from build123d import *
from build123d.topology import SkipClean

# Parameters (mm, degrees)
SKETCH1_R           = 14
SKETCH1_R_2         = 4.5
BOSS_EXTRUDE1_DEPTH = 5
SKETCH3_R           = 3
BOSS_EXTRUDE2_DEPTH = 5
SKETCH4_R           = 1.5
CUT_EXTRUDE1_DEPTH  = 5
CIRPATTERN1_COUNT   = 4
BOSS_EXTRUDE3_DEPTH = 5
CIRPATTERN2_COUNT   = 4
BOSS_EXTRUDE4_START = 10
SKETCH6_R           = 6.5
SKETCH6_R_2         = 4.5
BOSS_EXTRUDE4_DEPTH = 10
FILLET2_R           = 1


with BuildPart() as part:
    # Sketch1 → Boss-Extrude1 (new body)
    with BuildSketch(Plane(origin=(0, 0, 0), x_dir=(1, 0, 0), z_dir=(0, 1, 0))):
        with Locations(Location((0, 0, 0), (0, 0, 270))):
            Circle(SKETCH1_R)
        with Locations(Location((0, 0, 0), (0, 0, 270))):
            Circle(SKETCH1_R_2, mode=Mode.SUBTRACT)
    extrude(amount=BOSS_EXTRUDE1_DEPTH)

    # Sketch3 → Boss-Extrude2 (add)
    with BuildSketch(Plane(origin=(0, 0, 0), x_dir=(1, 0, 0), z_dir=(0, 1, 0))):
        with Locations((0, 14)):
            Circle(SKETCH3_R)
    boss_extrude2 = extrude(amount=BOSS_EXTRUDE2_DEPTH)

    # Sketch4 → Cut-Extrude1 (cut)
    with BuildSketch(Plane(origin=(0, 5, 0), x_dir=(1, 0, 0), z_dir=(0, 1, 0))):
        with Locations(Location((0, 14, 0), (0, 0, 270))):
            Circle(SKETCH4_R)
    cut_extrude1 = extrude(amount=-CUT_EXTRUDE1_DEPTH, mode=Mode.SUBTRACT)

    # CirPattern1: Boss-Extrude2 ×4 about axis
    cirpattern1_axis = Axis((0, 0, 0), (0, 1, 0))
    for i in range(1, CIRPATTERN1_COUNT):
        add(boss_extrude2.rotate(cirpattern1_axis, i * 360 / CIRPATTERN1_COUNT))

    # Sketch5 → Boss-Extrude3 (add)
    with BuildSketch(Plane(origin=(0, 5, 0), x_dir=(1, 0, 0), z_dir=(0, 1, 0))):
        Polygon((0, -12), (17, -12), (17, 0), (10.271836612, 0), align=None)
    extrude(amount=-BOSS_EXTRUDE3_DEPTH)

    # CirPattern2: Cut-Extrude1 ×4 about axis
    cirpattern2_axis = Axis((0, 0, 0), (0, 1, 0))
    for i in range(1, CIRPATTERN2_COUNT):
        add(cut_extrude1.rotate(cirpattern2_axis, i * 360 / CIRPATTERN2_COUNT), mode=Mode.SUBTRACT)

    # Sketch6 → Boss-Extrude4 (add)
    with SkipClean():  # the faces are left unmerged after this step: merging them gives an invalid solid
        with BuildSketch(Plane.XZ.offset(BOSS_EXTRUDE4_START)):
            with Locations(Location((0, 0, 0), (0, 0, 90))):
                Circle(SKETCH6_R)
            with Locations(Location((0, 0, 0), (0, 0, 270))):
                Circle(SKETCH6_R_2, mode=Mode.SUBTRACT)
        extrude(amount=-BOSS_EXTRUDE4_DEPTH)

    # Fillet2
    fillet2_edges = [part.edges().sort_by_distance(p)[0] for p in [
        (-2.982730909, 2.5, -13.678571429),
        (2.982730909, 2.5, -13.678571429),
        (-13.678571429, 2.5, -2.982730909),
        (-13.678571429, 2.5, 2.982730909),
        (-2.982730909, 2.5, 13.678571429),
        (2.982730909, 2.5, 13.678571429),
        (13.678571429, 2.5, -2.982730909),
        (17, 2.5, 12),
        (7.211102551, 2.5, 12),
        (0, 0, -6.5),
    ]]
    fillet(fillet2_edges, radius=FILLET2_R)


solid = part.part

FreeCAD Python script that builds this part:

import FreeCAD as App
import Part
import Sketcher
from FreeCAD import Vector
Q = App.Units.Quantity


def edges_at(feature, points):
    """Names of the edges that pass closest to the given points."""
    edges = feature.Shape.Edges
    near = lambda p: min(range(len(edges)), key=lambda i: edges[i].distToShape(Part.Vertex(*p))[0])
    return sorted({f"Edge{near(p) + 1}" for p in points})

doc = App.newDocument("Part")
params = doc.addObject("Spreadsheet::Sheet", "Params")
for row, (alias, value) in enumerate([
    ("sketch1_diameter", "28 mm"),
    ("sketch1_diameter2", "9 mm"),
    ("pad1_length", "5 mm"),
    ("sketch2_diameter", "6 mm"),
    ("pad2_length", "5 mm"),
    ("sketch3_diameter", "3 mm"),
    ("pocket1_length", "5 mm"),
    ("sketch4_width", "17 mm"),
    ("sketch4_height", "12 mm"),
    ("pad3_length", "5 mm"),
    ("sketch5_diameter", "13 mm"),
    ("sketch5_diameter2", "9 mm"),
    ("pad4_length", "10 mm"),
    ("fillet_radius", "1 mm"),
], start=1):
    params.set(f"A{row}", alias)
    params.set(f"B{row}", "=" + value)
    params.setAlias(f"B{row}", alias)

body = doc.addObject("PartDesign::Body", "Body")

# Sketch on XZ plane
sketch1 = body.newObject("Sketcher::SketchObject", "Sketch")
sketch1.AttachmentSupport = (doc.getObject("XZ_Plane"), [""])
sketch1.MapMode = "FlatFace"
sketch1.addGeometry([
    Part.Circle(Vector(0, 0, 0), Vector(0, 0, 1), 14),
    Part.Circle(Vector(0, 0, 0), Vector(0, 0, 1), 4.5),
], False)
sketch1.addConstraint([
    Sketcher.Constraint("Coincident", 0, 3, -1, 1),
    Sketcher.Constraint("Coincident", 1, 3, -1, 1),
    Sketcher.Constraint("Diameter", 0, Q("28 mm")),
    Sketcher.Constraint("Diameter", 1, Q("9 mm")),
])
sketch1.setExpression("Constraints[2]", "Params.sketch1_diameter")
sketch1.setExpression("Constraints[3]", "Params.sketch1_diameter2")
pad1 = body.newObject("PartDesign::Pad", "Pad")
pad1.Profile = sketch1
pad1.setExpression("Length", "Params.pad1_length")
pad1.Reversed = True

# Sketch on XZ plane
sketch2 = body.newObject("Sketcher::SketchObject", "Sketch001")
sketch2.AttachmentSupport = (doc.getObject("XZ_Plane"), [""])
sketch2.MapMode = "FlatFace"
sketch2.addGeometry(Part.Circle(Vector(0, -14, 0), Vector(0, 0, 1), 3), False)
sketch2.addConstraint([
    Sketcher.Constraint("PointOnObject", 0, 3, -2),
    Sketcher.Constraint("Diameter", 0, Q("6 mm")),
    Sketcher.Constraint("DistanceY", 0, 3, -1, 1, Q("14 mm")),
])
sketch2.setExpression("Constraints[1]", "Params.sketch2_diameter")
pad2 = body.newObject("PartDesign::Pad", "Pad001")
pad2.Profile = sketch2
pad2.setExpression("Length", "Params.pad2_length")
pad2.Reversed = True

# Sketch on XZ plane
sketch3 = body.newObject("Sketcher::SketchObject", "Sketch002")
sketch3.AttachmentSupport = (doc.getObject("XZ_Plane"), [""])
sketch3.MapMode = "FlatFace"
sketch3.AttachmentOffset = App.Placement(Vector(0, 0, -5), App.Rotation())
sketch3.addGeometry(Part.Circle(Vector(0, -14, 0), Vector(0, 0, 1), 1.5), False)
sketch3.addConstraint([
    Sketcher.Constraint("PointOnObject", 0, 3, -2),
    Sketcher.Constraint("Diameter", 0, Q("3 mm")),
    Sketcher.Constraint("DistanceY", 0, 3, -1, 1, Q("14 mm")),
])
sketch3.setExpression("Constraints[1]", "Params.sketch3_diameter")
pocket1 = body.newObject("PartDesign::Pocket", "Pocket")
pocket1.Profile = sketch3
pocket1.setExpression("Length", "Params.pocket1_length")
pocket1.Reversed = True
doc.recompute()

polarpattern = body.newObject("PartDesign::PolarPattern", "PolarPattern")
polarpattern.Originals = [pad2]
polarpattern.Axis = (doc.getObject("Y_Axis"), [""])
polarpattern.Angle = 360
polarpattern.Occurrences = 4
body.Tip = polarpattern

# Sketch on XZ plane
sketch4 = body.newObject("Sketcher::SketchObject", "Sketch003")
sketch4.AttachmentSupport = (doc.getObject("XZ_Plane"), [""])
sketch4.MapMode = "FlatFace"
sketch4.AttachmentOffset = App.Placement(Vector(0, 0, -5), App.Rotation())
sketch4.addGeometry([
    Part.LineSegment(Vector(0, 12, 0), Vector(17, 12, 0)),
    Part.LineSegment(Vector(17, 12, 0), Vector(17, 0, 0)),
    Part.LineSegment(Vector(17, 0, 0), Vector(10.271837, 0, 0)),
    Part.LineSegment(Vector(10.271837, 0, 0), Vector(0, 12, 0)),
], False)
sketch4.addConstraint([
    Sketcher.Constraint("Coincident", 0, 2, 1, 1),
    Sketcher.Constraint("Coincident", 1, 2, 2, 1),
    Sketcher.Constraint("Coincident", 2, 2, 3, 1),
    Sketcher.Constraint("Coincident", 3, 2, 0, 1),
    Sketcher.Constraint("Horizontal", 0),
    Sketcher.Constraint("Vertical", 1),
    Sketcher.Constraint("Horizontal", 2),
    Sketcher.Constraint("PointOnObject", 1, 2, -1),
    Sketcher.Constraint("PointOnObject", 3, 2, -2),
    Sketcher.Constraint("DistanceX", 0, 1, 0, 2, Q("17 mm")),
    Sketcher.Constraint("DistanceY", 1, 2, 1, 1, Q("12 mm")),
    Sketcher.Constraint("DistanceX", 2, 2, 2, 1, Q("6.728163 mm")),
])
sketch4.setExpression("Constraints[9]", "Params.sketch4_width")
sketch4.setExpression("Constraints[10]", "Params.sketch4_height")
pad3 = body.newObject("PartDesign::Pad", "Pad002")
pad3.Profile = sketch4
pad3.setExpression("Length", "Params.pad3_length")
doc.recompute()

polarpattern2 = body.newObject("PartDesign::PolarPattern", "PolarPattern001")
polarpattern2.Originals = [pocket1]
polarpattern2.Axis = (doc.getObject("Y_Axis"), [""])
polarpattern2.Angle = 360
polarpattern2.Occurrences = 4
body.Tip = polarpattern2

# Sketch on XZ plane
sketch5 = body.newObject("Sketcher::SketchObject", "Sketch004")
sketch5.AttachmentSupport = (doc.getObject("XZ_Plane"), [""])
sketch5.MapMode = "FlatFace"
sketch5.AttachmentOffset = App.Placement(Vector(0, 0, 10), App.Rotation())
sketch5.addGeometry([
    Part.Circle(Vector(0, 0, 0), Vector(0, 0, 1), 6.5),
    Part.Circle(Vector(0, 0, 0), Vector(0, 0, 1), 4.5),
], False)
sketch5.addConstraint([
    Sketcher.Constraint("Coincident", 0, 3, -1, 1),
    Sketcher.Constraint("Coincident", 1, 3, -1, 1),
    Sketcher.Constraint("Diameter", 0, Q("13 mm")),
    Sketcher.Constraint("Diameter", 1, Q("9 mm")),
])
sketch5.setExpression("Constraints[2]", "Params.sketch5_diameter")
sketch5.setExpression("Constraints[3]", "Params.sketch5_diameter2")
pad4 = body.newObject("PartDesign::Pad", "Pad003")
pad4.Profile = sketch5
pad4.setExpression("Length", "Params.pad4_length")
pad4.Reversed = True
doc.recompute()

fillet = body.newObject("PartDesign::Fillet", "Fillet")
fillet.Base = (pad4, edges_at(pad4, [
    (-2.983, 2.5, -13.679),
    (2.983, 2.5, -13.679),
    (-13.679, 2.5, -2.983),
    (-13.679, 2.5, 2.983),
    (-2.983, 2.5, 13.679),
    (2.983, 2.5, 13.679),
    (13.679, 2.5, -2.983),
    (17, 2.5, 12),
    (7.211, 2.5, 12),
    (0, 0, -6.5),
]))
fillet.setExpression("Radius", "Params.fillet_radius")

doc.recompute()
